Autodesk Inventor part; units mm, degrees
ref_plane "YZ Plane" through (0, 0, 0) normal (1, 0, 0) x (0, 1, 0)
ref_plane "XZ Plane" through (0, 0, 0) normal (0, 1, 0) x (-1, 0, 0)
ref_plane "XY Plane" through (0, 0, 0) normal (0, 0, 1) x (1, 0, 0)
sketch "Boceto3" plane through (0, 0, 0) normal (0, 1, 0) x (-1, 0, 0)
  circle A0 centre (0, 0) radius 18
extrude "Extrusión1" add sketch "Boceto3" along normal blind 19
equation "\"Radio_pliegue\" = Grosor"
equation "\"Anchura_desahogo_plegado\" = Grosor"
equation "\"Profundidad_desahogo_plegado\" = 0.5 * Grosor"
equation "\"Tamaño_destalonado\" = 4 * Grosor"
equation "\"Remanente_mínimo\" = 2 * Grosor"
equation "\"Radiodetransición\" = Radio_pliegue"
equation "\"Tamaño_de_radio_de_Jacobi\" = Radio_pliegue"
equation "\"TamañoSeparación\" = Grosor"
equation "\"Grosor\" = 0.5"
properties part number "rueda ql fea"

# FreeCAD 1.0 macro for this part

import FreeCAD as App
import Part
import Sketcher
Q = App.Units.Quantity

doc = App.newDocument("Part")
body = doc.addObject("PartDesign::Body", "Body")

# Sketch on XZ plane
sketch1 = doc.addObject("Sketcher::SketchObject", "Sketch")
body.addObject(sketch1)
sketch1.AttachmentSupport = (doc.XZ_Plane, [""])
sketch1.MapMode = "FlatFace"
sketch1.addGeometry(Part.Circle(App.Vector(0, 0, 0), App.Vector(0, 0, 1), 18), False)
sketch1.addConstraint([
    Sketcher.Constraint("Coincident", 0, 3, -1, 1),
    Sketcher.Constraint("Diameter", 0, Q("36 mm")),
])
pad1 = doc.addObject("PartDesign::Pad", "Pad")
body.addObject(pad1)
pad1.Profile = sketch1
pad1.Length = 19
pad1.Reversed = True

doc.recompute()
